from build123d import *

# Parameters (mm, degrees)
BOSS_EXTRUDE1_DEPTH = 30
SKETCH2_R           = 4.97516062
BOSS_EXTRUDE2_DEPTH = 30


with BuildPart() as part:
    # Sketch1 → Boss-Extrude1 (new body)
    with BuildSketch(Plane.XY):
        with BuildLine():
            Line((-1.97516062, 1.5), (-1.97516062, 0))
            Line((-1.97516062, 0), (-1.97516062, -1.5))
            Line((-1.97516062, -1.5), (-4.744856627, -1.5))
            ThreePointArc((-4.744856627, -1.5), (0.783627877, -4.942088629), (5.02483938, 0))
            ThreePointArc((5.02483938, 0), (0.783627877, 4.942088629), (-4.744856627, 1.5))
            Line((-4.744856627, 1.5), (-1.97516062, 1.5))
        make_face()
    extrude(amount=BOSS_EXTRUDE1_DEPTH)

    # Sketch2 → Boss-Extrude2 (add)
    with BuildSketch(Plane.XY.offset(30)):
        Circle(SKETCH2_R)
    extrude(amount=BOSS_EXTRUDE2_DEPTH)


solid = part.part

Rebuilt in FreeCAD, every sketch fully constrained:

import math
import FreeCAD as App
import Part
import Sketcher
from FreeCAD import Vector
Q = App.Units.Quantity

doc = App.newDocument("Part")
params = doc.addObject("Spreadsheet::Sheet", "Params")
for row, (alias, value) in enumerate([
    ("sketch1_radius", "5 mm"),
    ("sketch1_height", "3 mm"),
    ("pad1_length", "30 mm"),
    ("pad2_length", "30 mm"),
], start=1):
    params.set(f"A{row}", alias)
    params.set(f"B{row}", "=" + value)
    params.setAlias(f"B{row}", alias)

body = doc.addObject("PartDesign::Body", "Body")

# Sketch on XY plane
sketch1 = body.newObject("Sketcher::SketchObject", "Sketch")
sketch1.AttachmentSupport = (doc.getObject("XY_Plane"), [""])
sketch1.MapMode = "FlatFace"
sketch1.addGeometry(Part.LineSegment(Vector(-1.975161, 1.5, 0), Vector(-1.975161, -1.5, 0)), False)
sketch1.addGeometry(Part.LineSegment(Vector(-1.975161, -1.5, 0), Vector(-4.744857, -1.5, 0)), False)
sketch1.addGeometry(Part.ArcOfCircle(Part.Circle(Vector(0.024839, 0, 0), Vector(0, 0, 1), 5), math.radians(-162.542397), math.radians(0)), False)
sketch1.addGeometry(Part.ArcOfCircle(Part.Circle(Vector(0.024839, 0, 0), Vector(0, 0, 1), 5), math.radians(0), math.radians(162.542397)), False)
sketch1.addGeometry(Part.LineSegment(Vector(-4.744857, 1.5, 0), Vector(-1.975161, 1.5, 0)), False)
sketch1.addConstraint(Sketcher.Constraint("Coincident", 0, 2, 1, 1))
sketch1.addConstraint(Sketcher.Constraint("Coincident", 1, 2, 2, 1))
sketch1.addConstraint(Sketcher.Constraint("Tangent", 2, 2, 3, 1))
sketch1.addConstraint(Sketcher.Constraint("Coincident", 3, 2, 4, 1))
sketch1.addConstraint(Sketcher.Constraint("Coincident", 4, 2, 0, 1))
sketch1.addConstraint(Sketcher.Constraint("Vertical", 0))
sketch1.addConstraint(Sketcher.Constraint("Horizontal", 1))
sketch1.addConstraint(Sketcher.Constraint("Horizontal", 4))
sketch1.addConstraint(Sketcher.Constraint("Equal", 2, 3))
sketch1.addConstraint(Sketcher.Constraint("Symmetric", 1, 2, 3, 2, -1))
sketch1.addConstraint(Sketcher.Constraint("PointOnObject", 2, 2, -1))
sketch1.addConstraint(Sketcher.Constraint("Radius", 2, Q("5 mm")))
sketch1.addConstraint(Sketcher.Constraint("DistanceY", 0, 2, 0, 1, Q("3 mm")))
sketch1.addConstraint(Sketcher.Constraint("DistanceX", 0, 2, 2, 3, Q("2 mm")))
sketch1.addConstraint(Sketcher.Constraint("DistanceX", -1, 1, 2, 3, Q("0.024839 mm")))
sketch1.setExpression("Constraints[11]", "Params.sketch1_radius")
sketch1.setExpression("Constraints[12]", "Params.sketch1_height")
pad1 = body.newObject("PartDesign::Pad", "Pad")
pad1.Profile = sketch1
pad1.setExpression("Length", "Params.pad1_length")

# Sketch on XY plane
sketch2 = body.newObject("Sketcher::SketchObject", "Sketch001")
sketch2.AttachmentSupport = (doc.getObject("XY_Plane"), [""])
sketch2.MapMode = "FlatFace"
sketch2.AttachmentOffset = App.Placement(Vector(0, 0, 30), App.Rotation())
sketch2.addGeometry(Part.Circle(Vector(0, 0, 0), Vector(0, 0, 1), 4.975161), False)
sketch2.addConstraint(Sketcher.Constraint("Coincident", 0, 3, -1, 1))
sketch2.addConstraint(Sketcher.Constraint("Diameter", 0, Q("9.950321 mm")))
pad2 = body.newObject("PartDesign::Pad", "Pad001")
pad2.Profile = sketch2
pad2.setExpression("Length", "Params.pad2_length")

doc.recompute()
